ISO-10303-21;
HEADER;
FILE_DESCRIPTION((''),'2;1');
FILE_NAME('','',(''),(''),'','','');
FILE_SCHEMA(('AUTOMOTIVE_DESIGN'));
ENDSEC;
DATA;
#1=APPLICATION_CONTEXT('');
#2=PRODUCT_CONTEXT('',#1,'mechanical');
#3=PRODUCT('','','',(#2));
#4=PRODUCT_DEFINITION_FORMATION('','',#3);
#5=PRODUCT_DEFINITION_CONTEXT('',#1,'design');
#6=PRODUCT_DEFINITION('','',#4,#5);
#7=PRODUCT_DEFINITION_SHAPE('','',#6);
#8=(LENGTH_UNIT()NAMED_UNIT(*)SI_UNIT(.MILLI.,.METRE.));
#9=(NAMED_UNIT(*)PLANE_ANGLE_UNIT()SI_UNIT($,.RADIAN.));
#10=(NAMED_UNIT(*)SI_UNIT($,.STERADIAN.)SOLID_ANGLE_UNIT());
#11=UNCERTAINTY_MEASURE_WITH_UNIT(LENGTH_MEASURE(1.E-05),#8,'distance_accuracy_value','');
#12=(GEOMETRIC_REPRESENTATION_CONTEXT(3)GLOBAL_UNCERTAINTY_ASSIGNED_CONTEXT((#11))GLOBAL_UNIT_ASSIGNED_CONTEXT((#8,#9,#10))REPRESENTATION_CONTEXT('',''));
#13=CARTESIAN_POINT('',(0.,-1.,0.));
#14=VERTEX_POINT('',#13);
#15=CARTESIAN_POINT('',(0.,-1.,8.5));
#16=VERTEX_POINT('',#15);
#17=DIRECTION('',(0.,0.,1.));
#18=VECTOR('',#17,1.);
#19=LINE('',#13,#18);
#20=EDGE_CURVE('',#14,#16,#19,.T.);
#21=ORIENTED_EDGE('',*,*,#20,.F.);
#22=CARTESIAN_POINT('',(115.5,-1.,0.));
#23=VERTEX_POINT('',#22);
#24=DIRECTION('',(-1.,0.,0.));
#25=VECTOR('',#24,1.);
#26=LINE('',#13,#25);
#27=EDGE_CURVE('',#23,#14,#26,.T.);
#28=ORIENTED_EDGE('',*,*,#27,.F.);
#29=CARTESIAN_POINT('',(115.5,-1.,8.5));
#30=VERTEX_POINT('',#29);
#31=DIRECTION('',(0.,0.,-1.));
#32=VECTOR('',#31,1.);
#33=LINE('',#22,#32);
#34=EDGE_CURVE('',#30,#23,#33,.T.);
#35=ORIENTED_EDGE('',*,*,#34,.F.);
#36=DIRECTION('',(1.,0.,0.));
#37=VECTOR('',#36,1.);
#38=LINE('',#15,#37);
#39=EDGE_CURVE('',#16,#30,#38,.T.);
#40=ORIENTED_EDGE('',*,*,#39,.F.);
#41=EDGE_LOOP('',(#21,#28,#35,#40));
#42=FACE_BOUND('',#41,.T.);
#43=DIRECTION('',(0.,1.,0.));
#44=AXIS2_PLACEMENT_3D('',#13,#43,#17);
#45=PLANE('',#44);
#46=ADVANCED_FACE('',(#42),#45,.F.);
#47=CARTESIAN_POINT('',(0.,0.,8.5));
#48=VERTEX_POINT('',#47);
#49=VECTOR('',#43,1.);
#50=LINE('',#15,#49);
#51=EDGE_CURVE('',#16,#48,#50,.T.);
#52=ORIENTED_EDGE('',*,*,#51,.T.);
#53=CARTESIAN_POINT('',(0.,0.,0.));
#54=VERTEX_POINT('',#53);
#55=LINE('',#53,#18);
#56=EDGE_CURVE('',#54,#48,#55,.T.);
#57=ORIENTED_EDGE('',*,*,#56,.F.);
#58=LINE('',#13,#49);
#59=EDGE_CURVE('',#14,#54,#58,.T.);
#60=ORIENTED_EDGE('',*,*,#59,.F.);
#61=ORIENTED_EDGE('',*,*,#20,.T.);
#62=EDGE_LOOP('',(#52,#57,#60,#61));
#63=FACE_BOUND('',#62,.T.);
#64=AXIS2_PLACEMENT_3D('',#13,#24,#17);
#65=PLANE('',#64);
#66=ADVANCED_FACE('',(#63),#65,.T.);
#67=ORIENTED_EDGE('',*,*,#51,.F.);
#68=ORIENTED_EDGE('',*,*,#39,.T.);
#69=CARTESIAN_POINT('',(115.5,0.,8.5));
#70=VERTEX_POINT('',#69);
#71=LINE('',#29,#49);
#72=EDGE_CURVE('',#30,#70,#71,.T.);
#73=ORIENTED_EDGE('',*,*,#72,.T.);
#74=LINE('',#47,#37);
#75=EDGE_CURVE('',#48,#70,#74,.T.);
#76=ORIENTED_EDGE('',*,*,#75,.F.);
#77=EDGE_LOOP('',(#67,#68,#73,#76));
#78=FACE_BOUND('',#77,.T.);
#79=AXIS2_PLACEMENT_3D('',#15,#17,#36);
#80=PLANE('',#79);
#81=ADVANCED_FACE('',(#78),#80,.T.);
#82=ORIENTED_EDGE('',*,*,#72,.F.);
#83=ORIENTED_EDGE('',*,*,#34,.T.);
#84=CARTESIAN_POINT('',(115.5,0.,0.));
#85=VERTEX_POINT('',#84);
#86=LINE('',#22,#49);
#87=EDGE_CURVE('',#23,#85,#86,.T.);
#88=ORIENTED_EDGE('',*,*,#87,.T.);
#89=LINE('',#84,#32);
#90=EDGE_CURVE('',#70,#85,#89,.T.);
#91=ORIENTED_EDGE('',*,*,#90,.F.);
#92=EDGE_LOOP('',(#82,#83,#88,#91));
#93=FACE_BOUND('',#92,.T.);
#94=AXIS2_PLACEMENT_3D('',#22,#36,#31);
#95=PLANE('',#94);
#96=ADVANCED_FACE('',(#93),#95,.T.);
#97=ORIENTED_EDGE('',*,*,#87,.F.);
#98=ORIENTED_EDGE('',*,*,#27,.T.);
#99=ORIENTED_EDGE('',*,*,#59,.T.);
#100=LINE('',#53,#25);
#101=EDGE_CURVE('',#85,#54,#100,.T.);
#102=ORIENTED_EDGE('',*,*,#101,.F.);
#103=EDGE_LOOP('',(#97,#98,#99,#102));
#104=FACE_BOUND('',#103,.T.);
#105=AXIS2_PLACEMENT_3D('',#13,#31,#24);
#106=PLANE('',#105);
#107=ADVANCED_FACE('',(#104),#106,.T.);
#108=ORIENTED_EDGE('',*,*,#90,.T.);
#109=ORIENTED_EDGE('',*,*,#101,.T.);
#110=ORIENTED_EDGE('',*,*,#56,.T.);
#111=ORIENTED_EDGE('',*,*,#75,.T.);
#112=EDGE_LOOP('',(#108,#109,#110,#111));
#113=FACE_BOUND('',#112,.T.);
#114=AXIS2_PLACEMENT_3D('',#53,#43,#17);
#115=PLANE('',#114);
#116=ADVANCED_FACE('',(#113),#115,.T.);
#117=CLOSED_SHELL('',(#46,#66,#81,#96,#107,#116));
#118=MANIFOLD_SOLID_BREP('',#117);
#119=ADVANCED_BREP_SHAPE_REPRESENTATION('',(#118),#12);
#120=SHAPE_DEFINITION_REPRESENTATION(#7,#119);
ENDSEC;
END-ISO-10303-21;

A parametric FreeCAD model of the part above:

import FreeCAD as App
import Part
import Sketcher
from FreeCAD import Vector


def add_polygon(sketch, points):
    """Adds a closed chain of lines whose ends are joined by coincident constraints."""
    first, n = sketch.GeometryCount, len(points)
    for a, b in zip(points, points[1:] + points[:1]):
        sketch.addGeometry(Part.LineSegment(App.Vector(*a, 0), App.Vector(*b, 0)), False)
    for i in range(n):
        sketch.addConstraint(Sketcher.Constraint("Coincident", first + i, 2, first + (i + 1) % n, 1))

doc = App.newDocument("Part")
body = doc.addObject("PartDesign::Body", "Body")

# Sketch on XZ plane
sketch1 = body.newObject("Sketcher::SketchObject", "Sketch")
sketch1.AttachmentSupport = (doc.getObject("XZ_Plane"), [""])
sketch1.MapMode = "FlatFace"
add_polygon(sketch1, [(0, 0), (0, 8), (116, 8), (116, 0)])  # lines 0-3
sketch1.addConstraint([
    Sketcher.Constraint("Vertical", 0),
    Sketcher.Constraint("Horizontal", 1),
    Sketcher.Constraint("Vertical", 2),
    Sketcher.Constraint("Horizontal", 3),
    Sketcher.Constraint("Coincident", 3, 2, -1, 1),
    Sketcher.Constraint("DistanceX", 1, 1, 1, 2, 115.5),
    Sketcher.Constraint("DistanceY", 0, 1, 0, 2, 8.5),
])
pad1 = body.newObject("PartDesign::Pad", "Pad")
pad1.Profile = sketch1
pad1.Length = 1

doc.recompute()
